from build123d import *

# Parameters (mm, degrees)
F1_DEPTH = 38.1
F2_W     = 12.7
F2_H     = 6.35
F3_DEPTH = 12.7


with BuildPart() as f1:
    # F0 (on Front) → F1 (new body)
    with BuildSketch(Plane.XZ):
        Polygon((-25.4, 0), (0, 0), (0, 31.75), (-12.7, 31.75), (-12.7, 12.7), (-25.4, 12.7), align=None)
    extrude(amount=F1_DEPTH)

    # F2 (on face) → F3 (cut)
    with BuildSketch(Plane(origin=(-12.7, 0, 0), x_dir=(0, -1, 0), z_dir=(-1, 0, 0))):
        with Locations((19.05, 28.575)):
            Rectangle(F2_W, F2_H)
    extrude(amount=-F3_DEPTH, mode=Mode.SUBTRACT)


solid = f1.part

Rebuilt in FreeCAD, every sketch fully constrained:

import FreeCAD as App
import Part
import Sketcher

V = App.Vector
Q = App.Units.Quantity

doc = App.newDocument("Part")
body = doc.addObject("PartDesign::Body", "Body")

# Sketch on XZ plane
sketch1 = body.newObject("Sketcher::SketchObject", "Sketch")
sketch1.AttachmentSupport = (doc.getObject("XZ_Plane"), [""])
sketch1.MapMode = "FlatFace"
sketch1.addGeometry(Part.LineSegment(V(-25, 0, 0), V(0, 0, 0)), False)
sketch1.addGeometry(Part.LineSegment(V(0, 0, 0), V(0, 32, 0)), False)
sketch1.addGeometry(Part.LineSegment(V(0, 32, 0), V(-13, 32, 0)), False)
sketch1.addGeometry(Part.LineSegment(V(-13, 32, 0), V(-13, 13, 0)), False)
sketch1.addGeometry(Part.LineSegment(V(-13, 13, 0), V(-25, 13, 0)), False)
sketch1.addGeometry(Part.LineSegment(V(-25, 13, 0), V(-25, 0, 0)), False)
sketch1.addConstraint(Sketcher.Constraint("Coincident", 0, 2, 1, 1))
sketch1.addConstraint(Sketcher.Constraint("Coincident", 1, 2, 2, 1))
sketch1.addConstraint(Sketcher.Constraint("Coincident", 2, 2, 3, 1))
sketch1.addConstraint(Sketcher.Constraint("Coincident", 3, 2, 4, 1))
sketch1.addConstraint(Sketcher.Constraint("Coincident", 4, 2, 5, 1))
sketch1.addConstraint(Sketcher.Constraint("Coincident", 5, 2, 0, 1))
sketch1.addConstraint(Sketcher.Constraint("Horizontal", 0))
sketch1.addConstraint(Sketcher.Constraint("Vertical", 1))
sketch1.addConstraint(Sketcher.Constraint("Horizontal", 2))
sketch1.addConstraint(Sketcher.Constraint("Vertical", 3))
sketch1.addConstraint(Sketcher.Constraint("Horizontal", 4))
sketch1.addConstraint(Sketcher.Constraint("Vertical", 5))
sketch1.addConstraint(Sketcher.Constraint("Coincident", 0, 2, -1, 1))
sketch1.addConstraint(Sketcher.Constraint("Equal", 2, 4))
sketch1.addConstraint(Sketcher.Constraint("Equal", 4, 5))
sketch1.addConstraint(Sketcher.Constraint("DistanceX", 0, 1, 0, 2, Q("1 in")))
sketch1.addConstraint(Sketcher.Constraint("DistanceY", 1, 1, 1, 2, Q("1.25 in")))
pad1 = body.newObject("PartDesign::Pad", "Pad")
pad1.Profile = sketch1
pad1.Length = Q("1.5 in")

# Sketch on YZ plane
sketch2 = body.newObject("Sketcher::SketchObject", "Sketch001")
sketch2.AttachmentSupport = (doc.getObject("YZ_Plane"), [""])
sketch2.MapMode = "FlatFace"
sketch2.AttachmentOffset = App.Placement(V(0, 0, -0.5 * 25.4), App.Rotation())
sketch2.addGeometry(Part.LineSegment(V(-13, 32, 0), V(-13, 25, 0)), False)
sketch2.addGeometry(Part.LineSegment(V(-13, 25, 0), V(-25, 25, 0)), False)
sketch2.addGeometry(Part.LineSegment(V(-25, 25, 0), V(-25, 32, 0)), False)
sketch2.addGeometry(Part.LineSegment(V(-25, 32, 0), V(-13, 32, 0)), False)
sketch2.addConstraint(Sketcher.Constraint("Coincident", 0, 2, 1, 1))
sketch2.addConstraint(Sketcher.Constraint("Coincident", 1, 2, 2, 1))
sketch2.addConstraint(Sketcher.Constraint("Coincident", 2, 2, 3, 1))
sketch2.addConstraint(Sketcher.Constraint("Coincident", 3, 2, 0, 1))
sketch2.addConstraint(Sketcher.Constraint("Vertical", 0))
sketch2.addConstraint(Sketcher.Constraint("Horizontal", 1))
sketch2.addConstraint(Sketcher.Constraint("Vertical", 2))
sketch2.addConstraint(Sketcher.Constraint("Horizontal", 3))
sketch2.addConstraint(Sketcher.Constraint("DistanceX", 1, 2, 1, 1, Q("0.5 in")))
sketch2.addConstraint(Sketcher.Constraint("DistanceY", -1, 1, 0, 2, Q("1 in")))
sketch2.addConstraint(Sketcher.Constraint("DistanceX", 1, 2, -1, 1, Q("1 in")))
sketch2.addConstraint(Sketcher.Constraint("DistanceY", 0, 2, 0, 1, Q("0.25 in")))
pocket1 = body.newObject("PartDesign::Pocket", "Pocket")
pocket1.Profile = sketch2
pocket1.Length = Q("0.5 in")
pocket1.Reversed = True

doc.recompute()
